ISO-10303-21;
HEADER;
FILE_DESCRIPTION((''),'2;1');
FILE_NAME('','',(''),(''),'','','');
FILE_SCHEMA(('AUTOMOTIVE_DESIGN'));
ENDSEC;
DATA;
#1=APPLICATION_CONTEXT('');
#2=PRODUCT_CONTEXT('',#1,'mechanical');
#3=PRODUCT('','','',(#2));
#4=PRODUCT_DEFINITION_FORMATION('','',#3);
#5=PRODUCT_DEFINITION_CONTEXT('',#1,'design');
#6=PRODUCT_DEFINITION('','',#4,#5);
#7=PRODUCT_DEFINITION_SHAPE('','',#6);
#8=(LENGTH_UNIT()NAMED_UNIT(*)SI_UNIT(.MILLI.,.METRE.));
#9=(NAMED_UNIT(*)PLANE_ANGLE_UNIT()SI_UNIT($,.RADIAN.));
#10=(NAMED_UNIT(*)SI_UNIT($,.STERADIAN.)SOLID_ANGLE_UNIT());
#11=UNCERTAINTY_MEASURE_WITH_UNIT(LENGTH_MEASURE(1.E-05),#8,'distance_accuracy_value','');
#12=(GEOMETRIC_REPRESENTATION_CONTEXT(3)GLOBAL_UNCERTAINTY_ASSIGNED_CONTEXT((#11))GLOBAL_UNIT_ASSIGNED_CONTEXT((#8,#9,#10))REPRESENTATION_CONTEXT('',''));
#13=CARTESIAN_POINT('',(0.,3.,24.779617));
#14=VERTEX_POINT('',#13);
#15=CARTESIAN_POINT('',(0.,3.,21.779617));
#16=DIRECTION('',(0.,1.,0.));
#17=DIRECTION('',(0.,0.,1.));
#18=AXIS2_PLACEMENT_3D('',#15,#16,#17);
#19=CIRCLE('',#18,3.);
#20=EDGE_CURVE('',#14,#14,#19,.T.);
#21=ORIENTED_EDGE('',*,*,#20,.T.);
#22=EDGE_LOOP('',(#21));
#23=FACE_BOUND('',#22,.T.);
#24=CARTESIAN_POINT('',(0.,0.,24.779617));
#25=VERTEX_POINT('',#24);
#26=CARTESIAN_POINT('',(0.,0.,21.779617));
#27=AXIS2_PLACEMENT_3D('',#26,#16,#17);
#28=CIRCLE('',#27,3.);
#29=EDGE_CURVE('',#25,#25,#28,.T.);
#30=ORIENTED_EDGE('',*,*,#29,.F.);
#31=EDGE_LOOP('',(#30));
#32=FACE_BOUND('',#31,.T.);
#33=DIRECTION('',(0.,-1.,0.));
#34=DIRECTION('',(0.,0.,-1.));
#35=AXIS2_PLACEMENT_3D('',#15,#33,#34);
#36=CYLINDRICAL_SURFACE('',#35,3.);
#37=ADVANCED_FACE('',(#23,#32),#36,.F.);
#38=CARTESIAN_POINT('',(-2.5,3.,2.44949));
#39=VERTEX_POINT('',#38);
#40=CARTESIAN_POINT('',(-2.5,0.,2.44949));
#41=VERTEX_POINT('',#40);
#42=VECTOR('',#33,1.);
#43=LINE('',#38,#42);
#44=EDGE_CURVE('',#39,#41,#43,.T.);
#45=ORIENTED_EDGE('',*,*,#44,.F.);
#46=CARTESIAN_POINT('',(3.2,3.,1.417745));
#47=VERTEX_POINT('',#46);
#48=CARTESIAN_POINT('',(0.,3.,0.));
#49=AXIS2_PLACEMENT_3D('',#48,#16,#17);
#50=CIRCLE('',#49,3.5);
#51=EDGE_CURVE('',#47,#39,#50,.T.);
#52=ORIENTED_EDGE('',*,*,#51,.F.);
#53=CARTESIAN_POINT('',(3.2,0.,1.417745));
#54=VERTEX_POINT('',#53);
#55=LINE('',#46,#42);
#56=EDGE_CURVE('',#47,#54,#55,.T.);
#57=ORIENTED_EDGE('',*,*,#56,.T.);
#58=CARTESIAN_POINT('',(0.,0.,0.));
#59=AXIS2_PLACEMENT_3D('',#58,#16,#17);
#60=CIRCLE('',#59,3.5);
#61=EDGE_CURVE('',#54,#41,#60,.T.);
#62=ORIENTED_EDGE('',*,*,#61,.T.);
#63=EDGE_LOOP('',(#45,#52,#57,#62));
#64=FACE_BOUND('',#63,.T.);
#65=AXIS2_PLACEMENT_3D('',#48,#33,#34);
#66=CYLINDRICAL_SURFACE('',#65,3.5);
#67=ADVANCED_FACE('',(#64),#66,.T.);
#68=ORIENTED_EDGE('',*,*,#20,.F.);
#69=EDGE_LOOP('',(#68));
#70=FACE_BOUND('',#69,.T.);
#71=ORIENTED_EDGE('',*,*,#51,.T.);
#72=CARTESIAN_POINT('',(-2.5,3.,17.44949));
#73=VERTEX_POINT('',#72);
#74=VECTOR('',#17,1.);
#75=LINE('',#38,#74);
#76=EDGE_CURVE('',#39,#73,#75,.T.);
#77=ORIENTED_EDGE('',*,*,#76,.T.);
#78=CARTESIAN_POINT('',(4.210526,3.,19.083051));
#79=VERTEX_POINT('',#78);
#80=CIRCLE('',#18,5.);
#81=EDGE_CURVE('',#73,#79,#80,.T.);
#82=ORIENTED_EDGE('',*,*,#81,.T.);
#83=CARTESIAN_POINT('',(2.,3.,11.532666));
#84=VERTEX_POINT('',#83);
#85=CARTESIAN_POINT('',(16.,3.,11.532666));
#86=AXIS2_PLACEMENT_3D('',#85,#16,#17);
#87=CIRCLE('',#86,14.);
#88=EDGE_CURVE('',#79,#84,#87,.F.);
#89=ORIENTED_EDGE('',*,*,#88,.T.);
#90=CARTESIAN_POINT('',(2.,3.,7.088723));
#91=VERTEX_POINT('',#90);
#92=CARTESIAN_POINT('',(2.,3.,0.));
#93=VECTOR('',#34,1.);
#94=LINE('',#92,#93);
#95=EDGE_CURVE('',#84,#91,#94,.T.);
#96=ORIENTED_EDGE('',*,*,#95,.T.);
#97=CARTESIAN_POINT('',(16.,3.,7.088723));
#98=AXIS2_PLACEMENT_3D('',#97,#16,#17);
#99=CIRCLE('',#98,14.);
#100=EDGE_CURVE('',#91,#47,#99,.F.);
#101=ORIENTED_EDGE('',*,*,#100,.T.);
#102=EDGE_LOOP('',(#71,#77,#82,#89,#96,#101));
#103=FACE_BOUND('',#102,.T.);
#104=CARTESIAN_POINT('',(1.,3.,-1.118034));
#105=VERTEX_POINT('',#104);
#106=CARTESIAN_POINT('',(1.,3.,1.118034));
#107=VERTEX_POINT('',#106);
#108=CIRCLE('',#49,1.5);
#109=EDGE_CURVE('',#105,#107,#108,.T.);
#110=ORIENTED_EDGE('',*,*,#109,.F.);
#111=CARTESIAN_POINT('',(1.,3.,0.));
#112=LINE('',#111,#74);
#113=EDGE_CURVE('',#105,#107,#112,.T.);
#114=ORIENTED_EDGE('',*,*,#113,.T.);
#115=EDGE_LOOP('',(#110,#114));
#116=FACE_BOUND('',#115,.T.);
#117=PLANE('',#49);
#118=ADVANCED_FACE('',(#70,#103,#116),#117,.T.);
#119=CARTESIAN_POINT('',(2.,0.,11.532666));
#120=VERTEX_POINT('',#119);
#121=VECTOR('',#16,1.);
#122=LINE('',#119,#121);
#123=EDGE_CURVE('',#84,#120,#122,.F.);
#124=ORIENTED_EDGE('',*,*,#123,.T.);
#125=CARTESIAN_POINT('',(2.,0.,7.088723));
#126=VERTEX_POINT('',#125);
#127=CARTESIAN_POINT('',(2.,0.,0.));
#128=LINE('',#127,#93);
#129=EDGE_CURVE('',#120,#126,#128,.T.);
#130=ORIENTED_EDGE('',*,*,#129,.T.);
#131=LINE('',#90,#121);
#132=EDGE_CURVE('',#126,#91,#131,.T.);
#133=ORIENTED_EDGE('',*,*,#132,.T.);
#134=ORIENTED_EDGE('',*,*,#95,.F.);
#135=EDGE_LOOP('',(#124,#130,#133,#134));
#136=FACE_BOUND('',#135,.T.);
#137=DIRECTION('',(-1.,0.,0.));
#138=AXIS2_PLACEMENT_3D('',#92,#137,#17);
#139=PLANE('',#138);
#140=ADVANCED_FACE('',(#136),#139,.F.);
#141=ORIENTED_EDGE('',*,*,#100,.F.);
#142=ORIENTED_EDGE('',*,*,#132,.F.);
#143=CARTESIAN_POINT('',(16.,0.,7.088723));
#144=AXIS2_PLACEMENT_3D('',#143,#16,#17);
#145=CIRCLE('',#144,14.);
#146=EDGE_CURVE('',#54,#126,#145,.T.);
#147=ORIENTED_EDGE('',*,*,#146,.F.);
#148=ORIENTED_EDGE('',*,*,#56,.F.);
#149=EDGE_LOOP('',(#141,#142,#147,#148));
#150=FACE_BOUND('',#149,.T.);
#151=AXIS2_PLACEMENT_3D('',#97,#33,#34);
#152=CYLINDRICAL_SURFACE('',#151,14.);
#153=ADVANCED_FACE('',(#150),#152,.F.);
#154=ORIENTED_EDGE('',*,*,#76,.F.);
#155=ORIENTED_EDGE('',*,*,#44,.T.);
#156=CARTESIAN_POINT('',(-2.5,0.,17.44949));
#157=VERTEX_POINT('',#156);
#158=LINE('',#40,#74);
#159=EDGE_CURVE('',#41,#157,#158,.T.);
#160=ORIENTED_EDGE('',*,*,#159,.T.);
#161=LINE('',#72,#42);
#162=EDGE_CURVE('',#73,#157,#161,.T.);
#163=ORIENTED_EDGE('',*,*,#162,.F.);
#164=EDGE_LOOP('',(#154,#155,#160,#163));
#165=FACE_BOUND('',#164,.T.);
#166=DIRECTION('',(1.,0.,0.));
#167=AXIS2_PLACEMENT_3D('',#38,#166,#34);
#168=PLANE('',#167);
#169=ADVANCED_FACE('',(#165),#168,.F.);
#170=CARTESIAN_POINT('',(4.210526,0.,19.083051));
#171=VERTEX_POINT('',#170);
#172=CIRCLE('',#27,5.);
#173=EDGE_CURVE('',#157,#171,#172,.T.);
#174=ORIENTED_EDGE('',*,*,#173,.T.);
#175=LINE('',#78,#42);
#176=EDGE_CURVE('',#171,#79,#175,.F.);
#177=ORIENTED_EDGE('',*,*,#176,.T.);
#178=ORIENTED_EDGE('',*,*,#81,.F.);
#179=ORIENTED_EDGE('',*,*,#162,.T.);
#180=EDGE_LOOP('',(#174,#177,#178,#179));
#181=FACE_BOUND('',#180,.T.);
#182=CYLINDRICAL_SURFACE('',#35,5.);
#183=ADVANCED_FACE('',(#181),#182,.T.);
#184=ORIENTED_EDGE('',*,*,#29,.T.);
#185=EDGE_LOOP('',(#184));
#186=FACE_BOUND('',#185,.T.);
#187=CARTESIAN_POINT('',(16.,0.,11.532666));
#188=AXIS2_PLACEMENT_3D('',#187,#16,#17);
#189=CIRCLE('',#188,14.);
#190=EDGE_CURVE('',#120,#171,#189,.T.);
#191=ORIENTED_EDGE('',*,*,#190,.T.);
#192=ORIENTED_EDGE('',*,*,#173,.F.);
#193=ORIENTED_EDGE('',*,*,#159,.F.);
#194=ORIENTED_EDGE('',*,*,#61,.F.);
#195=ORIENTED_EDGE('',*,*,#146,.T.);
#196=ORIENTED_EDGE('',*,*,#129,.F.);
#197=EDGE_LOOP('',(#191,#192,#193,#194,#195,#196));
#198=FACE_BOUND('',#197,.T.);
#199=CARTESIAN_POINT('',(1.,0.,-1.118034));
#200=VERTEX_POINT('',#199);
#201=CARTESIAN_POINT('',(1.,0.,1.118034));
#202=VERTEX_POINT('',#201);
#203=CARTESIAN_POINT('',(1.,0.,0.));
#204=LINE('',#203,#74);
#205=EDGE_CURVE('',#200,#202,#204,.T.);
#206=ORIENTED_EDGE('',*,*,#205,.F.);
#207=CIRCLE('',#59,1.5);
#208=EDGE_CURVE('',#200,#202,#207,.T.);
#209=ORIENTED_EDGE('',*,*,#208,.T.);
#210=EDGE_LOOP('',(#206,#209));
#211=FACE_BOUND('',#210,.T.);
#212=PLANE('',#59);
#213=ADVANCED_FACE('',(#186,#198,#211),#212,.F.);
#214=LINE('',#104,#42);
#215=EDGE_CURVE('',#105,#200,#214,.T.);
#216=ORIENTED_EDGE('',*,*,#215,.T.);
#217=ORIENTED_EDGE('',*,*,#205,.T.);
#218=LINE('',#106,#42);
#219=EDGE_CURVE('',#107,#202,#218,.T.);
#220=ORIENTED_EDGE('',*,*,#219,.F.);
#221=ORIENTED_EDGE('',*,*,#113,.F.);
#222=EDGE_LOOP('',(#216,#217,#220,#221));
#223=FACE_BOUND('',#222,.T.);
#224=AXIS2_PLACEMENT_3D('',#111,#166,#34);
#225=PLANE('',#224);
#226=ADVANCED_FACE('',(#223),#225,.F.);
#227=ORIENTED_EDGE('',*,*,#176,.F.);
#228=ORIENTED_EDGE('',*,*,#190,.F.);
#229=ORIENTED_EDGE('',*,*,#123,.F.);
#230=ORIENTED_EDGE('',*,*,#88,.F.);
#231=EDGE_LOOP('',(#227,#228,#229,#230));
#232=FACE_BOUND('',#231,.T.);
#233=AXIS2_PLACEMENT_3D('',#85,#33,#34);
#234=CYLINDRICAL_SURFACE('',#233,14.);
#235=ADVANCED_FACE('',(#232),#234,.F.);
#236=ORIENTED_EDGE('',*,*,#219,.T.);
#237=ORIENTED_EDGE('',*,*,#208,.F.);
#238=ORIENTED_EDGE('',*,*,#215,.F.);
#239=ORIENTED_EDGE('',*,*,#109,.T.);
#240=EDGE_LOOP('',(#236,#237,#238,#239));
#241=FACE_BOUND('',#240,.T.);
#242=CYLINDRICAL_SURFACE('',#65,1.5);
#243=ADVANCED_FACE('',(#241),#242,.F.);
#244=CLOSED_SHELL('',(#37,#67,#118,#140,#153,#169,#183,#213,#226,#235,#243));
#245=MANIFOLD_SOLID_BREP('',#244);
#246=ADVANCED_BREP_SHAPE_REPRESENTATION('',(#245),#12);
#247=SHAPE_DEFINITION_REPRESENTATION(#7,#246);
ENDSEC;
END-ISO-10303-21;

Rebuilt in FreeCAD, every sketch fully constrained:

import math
import FreeCAD as App
import Part
import Sketcher
from FreeCAD import Vector
Q = App.Units.Quantity


def edges_at(feature, points):
    """Names of the edges that pass closest to the given points."""
    edges = feature.Shape.Edges
    near = lambda p: min(range(len(edges)), key=lambda i: edges[i].distToShape(Part.Vertex(*p))[0])
    return sorted({f"Edge{near(p) + 1}" for p in points})

doc = App.newDocument("Part")
body = doc.addObject("PartDesign::Body", "Body")

sketch1 = doc.addObject("Sketcher::SketchObject", "Sketch")
body.addObject(sketch1)
sketch1.AttachmentSupport = (doc.XZ_Plane, [""])
sketch1.MapMode = "FlatFace"
sketch1.addGeometry([
    Part.ArcOfCircle(Part.Circle(Vector(0, 0, 0), Vector(0, 0, 1), 3.5), math.radians(135.584691), math.radians(404.415309)),
    Part.LineSegment(Vector(-2.5, 2.44949, 0), Vector(-2.5, 17.44949, 0)),
    Part.ArcOfCircle(Part.Circle(Vector(0, 21.779617, 0), Vector(0, 0, 1), 5), math.radians(-60), math.radians(240)),
    Part.LineSegment(Vector(2.5, 17.44949, 0), Vector(2.5, 2.44949, 0)),
    Part.Circle(Vector(0, 21.779617, 0), Vector(0, 0, 1), 3),
    Part.ArcOfCircle(Part.Circle(Vector(0, 0, 0), Vector(0, 0, 1), 1.5), math.radians(48.189685), math.radians(311.810315)),
    Part.LineSegment(Vector(1, -1.118034, 0), Vector(1, 1.118034, 0)),
], False)
sketch1.addConstraint([
    Sketcher.Constraint("Coincident", 0, 1, 1, 1),
    Sketcher.Constraint("Coincident", 1, 2, 2, 2),
    Sketcher.Constraint("Coincident", 2, 1, 3, 1),
    Sketcher.Constraint("Coincident", 3, 2, 0, 2),
    Sketcher.Constraint("Coincident", 5, 1, 6, 2),
    Sketcher.Constraint("Coincident", 6, 1, 5, 2),
    Sketcher.Constraint("Vertical", 1),
    Sketcher.Constraint("Vertical", 3),
    Sketcher.Constraint("Vertical", 6),
    Sketcher.Constraint("Coincident", 0, 3, -1, 1),
    Sketcher.Constraint("Coincident", 5, 3, -1, 1),
    Sketcher.Constraint("Coincident", 4, 3, 2, 3),
    Sketcher.Constraint("Symmetric", 1, 2, 2, 1, -2),
    Sketcher.Constraint("Diameter", 4, Q("6 mm")),
    Sketcher.Constraint("Radius", 2, Q("5 mm")),
    Sketcher.Constraint("Radius", 0, Q("3.5 mm")),
    Sketcher.Constraint("Radius", 5, Q("1.5 mm")),
    Sketcher.Constraint("DistanceY", 1, 1, 1, 2, Q("15 mm")),
    Sketcher.Constraint("DistanceX", -1, 1, 5, 1, Q("1 mm")),
    Sketcher.Constraint("DistanceX", 1, 2, 2, 1, Q("5 mm")),
])
pad1 = doc.addObject("PartDesign::Pad", "Pad")
body.addObject(pad1)
pad1.Profile = sketch1
pad1.Length = 3
pad1.Reversed = True

sketch2 = doc.addObject("Sketcher::SketchObject", "Sketch001")
body.addObject(sketch2)
sketch2.AttachmentSupport = (doc.XZ_Plane, [""])
sketch2.MapMode = "FlatFace"
sketch2.addGeometry([
    Part.ArcOfCircle(Part.Circle(Vector(0, 21.779616, 0), Vector(0, 0, 1), 5), math.radians(-66.421822), math.radians(-60)),
    Part.LineSegment(Vector(2, 17.197041, 0), Vector(2, 2.872281, 0)),
    Part.ArcOfCircle(Part.Circle(Vector(0, 0, 0), Vector(0, 0, 1), 3.5), math.radians(44.415309), math.radians(55.150096)),
    Part.LineSegment(Vector(2.5, 2.44949, 0), Vector(2.5, 17.44949, 0)),
], False)
sketch2.addConstraint([
    Sketcher.Constraint("Coincident", 0, 1, 1, 1),
    Sketcher.Constraint("Coincident", 1, 2, 2, 2),
    Sketcher.Constraint("Coincident", 2, 1, 3, 1),
    Sketcher.Constraint("Coincident", 3, 2, 0, 2),
    Sketcher.Constraint("Vertical", 1),
    Sketcher.Constraint("Vertical", 3),
    Sketcher.Constraint("Coincident", 2, 3, -1, 1),
    Sketcher.Constraint("PointOnObject", 0, 3, -2),
    Sketcher.Constraint("Radius", 0, Q("5 mm")),
    Sketcher.Constraint("Radius", 2, Q("3.5 mm")),
    Sketcher.Constraint("DistanceY", 3, 1, 3, 2, Q("15 mm")),
    Sketcher.Constraint("DistanceX", -1, 1, 0, 1, Q("2 mm")),
    Sketcher.Constraint("DistanceX", -1, 1, 2, 1, Q("2.5 mm")),
])
pocket1 = doc.addObject("PartDesign::Pocket", "Pocket")
body.addObject(pocket1)
pocket1.Profile = sketch2
pocket1.Type = "ThroughAll"
doc.recompute()

fillet = doc.addObject("PartDesign::Fillet", "Fillet")
body.addObject(fillet)
fillet.Base = (pocket1, edges_at(pocket1, [(2, 1.5, 2.872), (2, 1.5, 17.197)]))
fillet.Radius = 14

doc.recompute()
